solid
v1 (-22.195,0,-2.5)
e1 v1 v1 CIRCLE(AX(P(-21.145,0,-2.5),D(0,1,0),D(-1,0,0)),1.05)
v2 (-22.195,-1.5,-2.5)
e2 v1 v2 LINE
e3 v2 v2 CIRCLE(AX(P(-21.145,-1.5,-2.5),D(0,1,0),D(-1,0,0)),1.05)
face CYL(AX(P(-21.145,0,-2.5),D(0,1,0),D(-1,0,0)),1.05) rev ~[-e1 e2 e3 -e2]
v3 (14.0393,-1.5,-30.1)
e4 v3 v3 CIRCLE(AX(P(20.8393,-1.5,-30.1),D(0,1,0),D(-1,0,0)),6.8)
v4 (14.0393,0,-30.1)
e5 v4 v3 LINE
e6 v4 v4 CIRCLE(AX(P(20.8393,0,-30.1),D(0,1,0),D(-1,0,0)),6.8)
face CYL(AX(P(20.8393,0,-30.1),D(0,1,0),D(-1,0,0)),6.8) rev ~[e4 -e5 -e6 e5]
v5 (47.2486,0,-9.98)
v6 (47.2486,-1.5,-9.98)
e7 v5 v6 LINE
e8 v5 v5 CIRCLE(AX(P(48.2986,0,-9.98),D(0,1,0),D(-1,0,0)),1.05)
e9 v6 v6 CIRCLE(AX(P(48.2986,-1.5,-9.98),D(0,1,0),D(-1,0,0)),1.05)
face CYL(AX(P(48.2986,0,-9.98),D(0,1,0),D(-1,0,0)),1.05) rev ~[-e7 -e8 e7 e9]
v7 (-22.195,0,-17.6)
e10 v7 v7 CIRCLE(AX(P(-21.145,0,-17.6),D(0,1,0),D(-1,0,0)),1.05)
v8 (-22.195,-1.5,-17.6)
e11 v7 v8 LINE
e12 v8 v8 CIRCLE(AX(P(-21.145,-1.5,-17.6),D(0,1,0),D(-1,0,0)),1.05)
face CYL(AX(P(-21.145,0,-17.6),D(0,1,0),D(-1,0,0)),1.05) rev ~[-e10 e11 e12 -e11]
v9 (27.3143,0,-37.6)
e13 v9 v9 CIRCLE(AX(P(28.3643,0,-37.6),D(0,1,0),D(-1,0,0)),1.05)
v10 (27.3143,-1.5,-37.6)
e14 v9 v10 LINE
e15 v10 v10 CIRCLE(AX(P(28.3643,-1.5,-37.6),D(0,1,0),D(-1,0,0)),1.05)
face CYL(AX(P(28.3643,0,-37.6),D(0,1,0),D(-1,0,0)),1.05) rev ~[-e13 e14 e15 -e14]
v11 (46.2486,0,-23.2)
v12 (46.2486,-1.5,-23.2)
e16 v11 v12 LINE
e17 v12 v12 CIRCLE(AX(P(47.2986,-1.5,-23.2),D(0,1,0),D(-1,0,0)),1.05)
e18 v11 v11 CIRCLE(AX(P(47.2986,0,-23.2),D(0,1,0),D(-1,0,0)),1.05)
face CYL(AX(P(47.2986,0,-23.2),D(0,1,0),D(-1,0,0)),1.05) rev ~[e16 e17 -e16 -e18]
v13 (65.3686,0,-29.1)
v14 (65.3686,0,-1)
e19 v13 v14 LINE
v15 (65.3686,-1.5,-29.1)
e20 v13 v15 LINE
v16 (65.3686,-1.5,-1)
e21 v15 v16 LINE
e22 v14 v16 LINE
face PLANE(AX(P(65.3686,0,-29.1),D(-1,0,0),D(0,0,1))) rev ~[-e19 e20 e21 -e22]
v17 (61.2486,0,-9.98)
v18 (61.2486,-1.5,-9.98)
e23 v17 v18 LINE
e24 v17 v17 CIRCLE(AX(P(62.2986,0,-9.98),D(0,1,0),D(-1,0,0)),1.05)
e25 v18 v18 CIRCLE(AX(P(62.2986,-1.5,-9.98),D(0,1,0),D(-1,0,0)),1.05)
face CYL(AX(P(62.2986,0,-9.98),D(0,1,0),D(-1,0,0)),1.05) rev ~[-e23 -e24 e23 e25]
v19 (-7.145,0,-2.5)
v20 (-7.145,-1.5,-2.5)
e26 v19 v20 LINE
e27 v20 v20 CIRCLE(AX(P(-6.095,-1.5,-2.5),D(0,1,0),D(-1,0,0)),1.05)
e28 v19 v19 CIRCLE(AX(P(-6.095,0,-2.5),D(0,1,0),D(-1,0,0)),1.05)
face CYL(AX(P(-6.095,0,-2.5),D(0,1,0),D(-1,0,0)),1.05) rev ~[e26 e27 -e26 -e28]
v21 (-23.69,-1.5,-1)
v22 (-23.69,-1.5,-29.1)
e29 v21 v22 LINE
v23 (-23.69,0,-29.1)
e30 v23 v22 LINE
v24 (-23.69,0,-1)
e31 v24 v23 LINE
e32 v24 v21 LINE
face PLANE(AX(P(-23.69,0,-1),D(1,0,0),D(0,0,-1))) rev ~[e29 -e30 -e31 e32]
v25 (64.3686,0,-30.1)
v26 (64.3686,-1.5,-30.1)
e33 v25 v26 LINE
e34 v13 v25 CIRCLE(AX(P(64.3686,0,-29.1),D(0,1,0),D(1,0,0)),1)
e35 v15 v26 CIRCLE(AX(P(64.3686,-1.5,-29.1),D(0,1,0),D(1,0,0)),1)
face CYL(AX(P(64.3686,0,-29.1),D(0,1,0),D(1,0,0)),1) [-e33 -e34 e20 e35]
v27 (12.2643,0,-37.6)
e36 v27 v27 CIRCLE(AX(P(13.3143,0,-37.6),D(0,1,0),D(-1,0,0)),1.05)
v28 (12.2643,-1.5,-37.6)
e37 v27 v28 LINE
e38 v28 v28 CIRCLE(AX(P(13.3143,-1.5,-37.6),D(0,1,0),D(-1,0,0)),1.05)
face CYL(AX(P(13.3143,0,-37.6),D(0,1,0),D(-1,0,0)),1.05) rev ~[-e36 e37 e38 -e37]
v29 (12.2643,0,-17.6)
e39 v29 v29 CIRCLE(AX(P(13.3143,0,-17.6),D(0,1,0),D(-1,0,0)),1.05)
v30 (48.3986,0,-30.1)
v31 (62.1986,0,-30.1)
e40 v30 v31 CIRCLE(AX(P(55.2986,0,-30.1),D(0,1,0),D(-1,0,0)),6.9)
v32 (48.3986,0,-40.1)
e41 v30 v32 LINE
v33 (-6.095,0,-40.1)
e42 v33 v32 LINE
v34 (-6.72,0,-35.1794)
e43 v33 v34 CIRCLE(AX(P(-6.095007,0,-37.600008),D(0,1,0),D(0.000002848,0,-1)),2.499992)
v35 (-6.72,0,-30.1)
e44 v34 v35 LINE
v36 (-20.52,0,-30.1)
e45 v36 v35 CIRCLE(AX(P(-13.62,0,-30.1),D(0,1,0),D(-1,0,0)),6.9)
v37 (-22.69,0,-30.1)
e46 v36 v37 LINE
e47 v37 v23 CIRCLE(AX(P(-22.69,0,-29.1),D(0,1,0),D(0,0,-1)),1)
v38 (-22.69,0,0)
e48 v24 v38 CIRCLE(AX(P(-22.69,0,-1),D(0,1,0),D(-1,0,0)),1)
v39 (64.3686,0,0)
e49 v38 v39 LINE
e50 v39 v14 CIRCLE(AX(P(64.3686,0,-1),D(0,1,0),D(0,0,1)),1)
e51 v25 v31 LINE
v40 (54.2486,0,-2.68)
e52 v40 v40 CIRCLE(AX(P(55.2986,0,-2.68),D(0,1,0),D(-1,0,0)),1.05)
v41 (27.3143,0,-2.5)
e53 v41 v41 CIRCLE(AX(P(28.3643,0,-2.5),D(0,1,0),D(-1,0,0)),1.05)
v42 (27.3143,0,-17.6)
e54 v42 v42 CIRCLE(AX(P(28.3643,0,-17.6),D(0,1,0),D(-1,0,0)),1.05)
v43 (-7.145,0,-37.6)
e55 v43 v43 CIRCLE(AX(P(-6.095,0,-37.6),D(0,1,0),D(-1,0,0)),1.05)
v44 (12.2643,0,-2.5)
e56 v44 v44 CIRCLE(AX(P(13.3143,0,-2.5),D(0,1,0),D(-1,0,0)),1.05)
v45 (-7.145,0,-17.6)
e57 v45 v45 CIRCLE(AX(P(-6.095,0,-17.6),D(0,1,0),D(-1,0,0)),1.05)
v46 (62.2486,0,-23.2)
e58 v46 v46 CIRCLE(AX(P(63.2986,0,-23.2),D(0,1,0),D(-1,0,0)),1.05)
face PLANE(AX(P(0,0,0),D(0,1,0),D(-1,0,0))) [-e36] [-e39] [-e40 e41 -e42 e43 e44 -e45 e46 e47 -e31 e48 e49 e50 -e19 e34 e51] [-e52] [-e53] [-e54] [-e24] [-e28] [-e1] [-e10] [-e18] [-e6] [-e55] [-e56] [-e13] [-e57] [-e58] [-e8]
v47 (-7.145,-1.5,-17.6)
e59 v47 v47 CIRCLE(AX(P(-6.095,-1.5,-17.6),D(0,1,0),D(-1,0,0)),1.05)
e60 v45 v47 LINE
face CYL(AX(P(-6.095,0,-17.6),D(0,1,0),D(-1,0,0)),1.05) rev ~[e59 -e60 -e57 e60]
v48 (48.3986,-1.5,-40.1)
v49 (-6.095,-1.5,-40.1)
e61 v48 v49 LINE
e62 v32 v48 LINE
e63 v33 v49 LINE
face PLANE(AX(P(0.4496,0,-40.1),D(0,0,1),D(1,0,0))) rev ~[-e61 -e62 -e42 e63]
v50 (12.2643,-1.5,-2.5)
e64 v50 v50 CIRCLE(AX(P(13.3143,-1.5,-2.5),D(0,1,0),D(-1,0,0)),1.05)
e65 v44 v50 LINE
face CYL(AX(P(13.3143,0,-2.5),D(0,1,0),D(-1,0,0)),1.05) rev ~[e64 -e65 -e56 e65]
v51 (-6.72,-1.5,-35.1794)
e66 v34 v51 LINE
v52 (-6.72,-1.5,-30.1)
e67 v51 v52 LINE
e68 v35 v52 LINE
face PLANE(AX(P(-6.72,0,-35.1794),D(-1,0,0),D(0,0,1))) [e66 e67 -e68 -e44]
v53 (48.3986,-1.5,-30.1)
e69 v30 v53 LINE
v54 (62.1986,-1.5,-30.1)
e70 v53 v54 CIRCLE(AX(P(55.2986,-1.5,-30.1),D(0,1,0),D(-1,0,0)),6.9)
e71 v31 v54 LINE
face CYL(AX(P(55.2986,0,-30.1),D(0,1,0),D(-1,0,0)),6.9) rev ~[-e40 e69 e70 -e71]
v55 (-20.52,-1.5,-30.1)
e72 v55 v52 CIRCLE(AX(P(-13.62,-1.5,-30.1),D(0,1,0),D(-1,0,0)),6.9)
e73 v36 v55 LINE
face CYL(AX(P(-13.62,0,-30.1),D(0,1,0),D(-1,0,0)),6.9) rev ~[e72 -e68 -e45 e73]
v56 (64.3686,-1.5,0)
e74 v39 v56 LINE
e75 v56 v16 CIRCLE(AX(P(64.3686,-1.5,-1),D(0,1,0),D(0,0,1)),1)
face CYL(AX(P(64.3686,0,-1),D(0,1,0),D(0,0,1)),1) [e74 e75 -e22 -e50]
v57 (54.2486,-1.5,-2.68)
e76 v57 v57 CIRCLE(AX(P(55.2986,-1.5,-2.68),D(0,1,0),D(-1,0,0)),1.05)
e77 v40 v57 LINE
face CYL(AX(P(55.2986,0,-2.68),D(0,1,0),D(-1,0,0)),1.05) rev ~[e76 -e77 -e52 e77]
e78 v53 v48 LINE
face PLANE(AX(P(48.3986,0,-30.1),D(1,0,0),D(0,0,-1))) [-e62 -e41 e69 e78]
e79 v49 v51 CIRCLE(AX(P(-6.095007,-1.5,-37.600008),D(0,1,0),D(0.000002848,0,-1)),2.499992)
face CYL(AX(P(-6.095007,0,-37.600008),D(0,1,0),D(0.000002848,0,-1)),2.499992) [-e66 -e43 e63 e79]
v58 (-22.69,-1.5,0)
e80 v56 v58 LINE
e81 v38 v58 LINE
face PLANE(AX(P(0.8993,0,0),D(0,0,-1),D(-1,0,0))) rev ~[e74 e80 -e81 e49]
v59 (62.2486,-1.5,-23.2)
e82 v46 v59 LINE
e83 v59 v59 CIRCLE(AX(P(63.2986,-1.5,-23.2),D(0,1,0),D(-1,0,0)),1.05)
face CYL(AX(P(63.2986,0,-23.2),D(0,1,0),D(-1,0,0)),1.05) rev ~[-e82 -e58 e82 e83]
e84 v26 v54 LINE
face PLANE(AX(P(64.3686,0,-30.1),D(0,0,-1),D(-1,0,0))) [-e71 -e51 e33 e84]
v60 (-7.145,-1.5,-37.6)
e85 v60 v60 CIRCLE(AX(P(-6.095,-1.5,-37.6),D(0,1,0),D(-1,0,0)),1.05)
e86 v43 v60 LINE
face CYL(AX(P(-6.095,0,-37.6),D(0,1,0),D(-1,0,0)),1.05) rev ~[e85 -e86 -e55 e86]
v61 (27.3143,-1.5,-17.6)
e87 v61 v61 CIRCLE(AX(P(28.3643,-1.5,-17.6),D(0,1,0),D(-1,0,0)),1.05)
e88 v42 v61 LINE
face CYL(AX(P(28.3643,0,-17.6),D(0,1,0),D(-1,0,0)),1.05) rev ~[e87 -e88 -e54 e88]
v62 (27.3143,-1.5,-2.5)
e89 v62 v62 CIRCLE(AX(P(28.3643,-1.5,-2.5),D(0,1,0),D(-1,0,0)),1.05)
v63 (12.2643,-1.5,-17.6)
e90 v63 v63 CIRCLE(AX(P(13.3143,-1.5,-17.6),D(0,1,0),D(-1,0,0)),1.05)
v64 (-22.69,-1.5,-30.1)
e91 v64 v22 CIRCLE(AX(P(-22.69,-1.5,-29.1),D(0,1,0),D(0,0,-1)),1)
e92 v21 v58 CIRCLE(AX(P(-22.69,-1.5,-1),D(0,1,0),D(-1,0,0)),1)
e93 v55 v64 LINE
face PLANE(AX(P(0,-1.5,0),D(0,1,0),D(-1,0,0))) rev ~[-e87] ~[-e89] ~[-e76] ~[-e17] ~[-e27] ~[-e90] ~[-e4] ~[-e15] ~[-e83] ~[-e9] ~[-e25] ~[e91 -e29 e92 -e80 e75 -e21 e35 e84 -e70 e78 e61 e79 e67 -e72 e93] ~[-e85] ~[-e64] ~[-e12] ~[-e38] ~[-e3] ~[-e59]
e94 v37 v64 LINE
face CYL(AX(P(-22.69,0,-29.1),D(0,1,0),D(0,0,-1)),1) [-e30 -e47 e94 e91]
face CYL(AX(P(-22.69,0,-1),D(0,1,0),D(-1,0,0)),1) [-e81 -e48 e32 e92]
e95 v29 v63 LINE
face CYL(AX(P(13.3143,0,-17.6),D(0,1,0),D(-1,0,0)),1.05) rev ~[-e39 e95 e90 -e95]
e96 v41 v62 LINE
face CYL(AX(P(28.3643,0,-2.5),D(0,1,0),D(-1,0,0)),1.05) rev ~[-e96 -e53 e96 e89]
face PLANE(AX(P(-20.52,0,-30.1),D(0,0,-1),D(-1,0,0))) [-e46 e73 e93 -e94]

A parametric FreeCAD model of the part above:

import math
import FreeCAD as App
import Part
import Sketcher
Q = App.Units.Quantity

doc = App.newDocument("Part")
body = doc.addObject("PartDesign::Body", "Body")

# Sketch on XZ plane
sketch1 = doc.addObject("Sketcher::SketchObject", "Sketch")
body.addObject(sketch1)
sketch1.AttachmentSupport = (doc.XZ_Plane, [""])
sketch1.MapMode = "FlatFace"
sketch1.addGeometry([
    Part.ArcOfCircle(Part.Circle(App.Vector(-6.095, -37.6, 0), App.Vector(0, 0, 1), 2.5), math.radians(104.477596), math.radians(270)),  # 0
    Part.LineSegment(App.Vector(-6.72, -35.1794, 0), App.Vector(-6.72, -30.1, 0)),  # 1
    Part.ArcOfCircle(Part.Circle(App.Vector(-13.62, -30.1, 0), App.Vector(0, 0, 1), 6.9), math.radians(0), math.radians(180)),  # 2
    Part.LineSegment(App.Vector(-20.52, -30.1, 0), App.Vector(-22.69, -30.1, 0)),  # 3
    Part.ArcOfCircle(Part.Circle(App.Vector(-22.69, -29.1, 0), App.Vector(0, 0, 1), 1), math.radians(180), math.radians(270)),  # 4
    Part.LineSegment(App.Vector(-23.69, -29.1, 0), App.Vector(-23.69, -1, 0)),  # 5
    Part.ArcOfCircle(Part.Circle(App.Vector(-22.69, -1, 0), App.Vector(0, 0, 1), 1), math.radians(90), math.radians(180)),  # 6
    Part.LineSegment(App.Vector(-22.69, 0, 0), App.Vector(64.3686, 0, 0)),  # 7
    Part.ArcOfCircle(Part.Circle(App.Vector(64.3686, -1, 0), App.Vector(0, 0, 1), 1), math.radians(0), math.radians(90)),  # 8
    Part.LineSegment(App.Vector(65.3686, -1, 0), App.Vector(65.3686, -29.1, 0)),  # 9
    Part.ArcOfCircle(Part.Circle(App.Vector(64.3686, -29.1, 0), App.Vector(0, 0, 1), 1), math.radians(-90), math.radians(0)),  # 10
    Part.LineSegment(App.Vector(64.3686, -30.1, 0), App.Vector(62.1986, -30.1, 0)),  # 11
    Part.ArcOfCircle(Part.Circle(App.Vector(55.2986, -30.1, 0), App.Vector(0, 0, 1), 6.9), math.radians(0), math.radians(180)),  # 12
    Part.LineSegment(App.Vector(48.3986, -30.1, 0), App.Vector(48.3986, -40.1, 0)),  # 13
    Part.LineSegment(App.Vector(48.3986, -40.1, 0), App.Vector(-6.095, -40.1, 0)),  # 14
    Part.Circle(App.Vector(13.3143, -2.5, 0), App.Vector(0, 0, 1), 1.05),  # 15
    Part.Circle(App.Vector(28.3643, -37.6, 0), App.Vector(0, 0, 1), 1.05),  # 16
    Part.Circle(App.Vector(13.3143, -37.6, 0), App.Vector(0, 0, 1), 1.05),  # 17
    Part.Circle(App.Vector(20.8393, -30.1, 0), App.Vector(0, 0, 1), 6.8),  # 18
    Part.Circle(App.Vector(28.3643, -17.6, 0), App.Vector(0, 0, 1), 1.05),  # 19
    Part.Circle(App.Vector(28.3643, -2.5, 0), App.Vector(0, 0, 1), 1.05),  # 20
    Part.Circle(App.Vector(13.3143, -17.6, 0), App.Vector(0, 0, 1), 1.05),  # 21
    Part.Circle(App.Vector(-21.145, -2.5, 0), App.Vector(0, 0, 1), 1.05),  # 22
    Part.Circle(App.Vector(-6.095, -37.6, 0), App.Vector(0, 0, 1), 1.05),  # 23
    Part.Circle(App.Vector(-6.095, -17.6, 0), App.Vector(0, 0, 1), 1.05),  # 24
    Part.Circle(App.Vector(-21.145, -17.6, 0), App.Vector(0, 0, 1), 1.05),  # 25
    Part.Circle(App.Vector(-6.095, -2.5, 0), App.Vector(0, 0, 1), 1.05),  # 26
    Part.Circle(App.Vector(55.2986, -2.68, 0), App.Vector(0, 0, 1), 1.05),  # 27
    Part.Circle(App.Vector(63.2986, -23.2, 0), App.Vector(0, 0, 1), 1.05),  # 28
    Part.Circle(App.Vector(47.2986, -23.2, 0), App.Vector(0, 0, 1), 1.05),  # 29
    Part.Circle(App.Vector(62.2986, -9.98, 0), App.Vector(0, 0, 1), 1.05),  # 30
    Part.Circle(App.Vector(48.2986, -9.98, 0), App.Vector(0, 0, 1), 1.05),  # 31
], False)
sketch1.addConstraint([
    Sketcher.Constraint("Coincident", 0, 1, 1, 1),
    Sketcher.Constraint("Tangent", 1, 2, 2, 1),
    Sketcher.Constraint("Coincident", 2, 2, 3, 1),
    Sketcher.Constraint("Tangent", 3, 2, 4, 2),
    Sketcher.Constraint("Tangent", 4, 1, 5, 1),
    Sketcher.Constraint("Tangent", 5, 2, 6, 2),
    Sketcher.Constraint("Tangent", 6, 1, 7, 1),
    Sketcher.Constraint("Tangent", 7, 2, 8, 2),
    Sketcher.Constraint("Tangent", 8, 1, 9, 1),
    Sketcher.Constraint("Tangent", 9, 2, 10, 2),
    Sketcher.Constraint("Tangent", 10, 1, 11, 1),
    Sketcher.Constraint("Coincident", 11, 2, 12, 1),
    Sketcher.Constraint("Tangent", 12, 2, 13, 1),
    Sketcher.Constraint("Coincident", 13, 2, 14, 1),
    Sketcher.Constraint("Tangent", 14, 2, 0, 2),
    Sketcher.Constraint("Vertical", 1),
    Sketcher.Constraint("Horizontal", 3),
    Sketcher.Constraint("Vertical", 5),
    Sketcher.Constraint("Horizontal", 7),
    Sketcher.Constraint("Vertical", 9),
    Sketcher.Constraint("Horizontal", 11),
    Sketcher.Constraint("Vertical", 13),
    Sketcher.Constraint("Horizontal", 14),
    Sketcher.Constraint("Coincident", 23, 3, 0, 3),
    Sketcher.Constraint("Equal", 4, 6),
    Sketcher.Constraint("Equal", 6, 8),
    Sketcher.Constraint("Equal", 8, 10),
    Sketcher.Constraint("Equal", 2, 12),
    Sketcher.Constraint("Equal", 15, 16),
    Sketcher.Constraint("Equal", 16, 17),
    Sketcher.Constraint("Equal", 17, 19),
    Sketcher.Constraint("Equal", 19, 20),
    Sketcher.Constraint("Equal", 20, 21),
    Sketcher.Constraint("Equal", 21, 22),
    Sketcher.Constraint("Equal", 22, 23),
    Sketcher.Constraint("Equal", 23, 24),
    Sketcher.Constraint("Equal", 24, 25),
    Sketcher.Constraint("Equal", 25, 26),
    Sketcher.Constraint("Equal", 26, 27),
    Sketcher.Constraint("Equal", 27, 28),
    Sketcher.Constraint("Equal", 28, 29),
    Sketcher.Constraint("Equal", 29, 30),
    Sketcher.Constraint("Equal", 30, 31),
    Sketcher.Constraint("PointOnObject", 6, 1, -1),
    Sketcher.Constraint("Horizontal", 4, 3, 10, 3),
    Sketcher.Constraint("Horizontal", 2, 3, 12, 3),
    Sketcher.Constraint("Horizontal", 0, 3, 16, 3),
    Sketcher.Constraint("Horizontal", 16, 3, 17, 3),
    Sketcher.Constraint("Horizontal", 12, 3, 18, 3),
    Sketcher.Constraint("Horizontal", 15, 3, 20, 3),
    Sketcher.Constraint("Horizontal", 19, 3, 21, 3),
    Sketcher.Constraint("Horizontal", 20, 3, 22, 3),
    Sketcher.Constraint("Horizontal", 21, 3, 24, 3),
    Sketcher.Constraint("Horizontal", 24, 3, 25, 3),
    Sketcher.Constraint("Horizontal", 22, 3, 26, 3),
    Sketcher.Constraint("Horizontal", 28, 3, 29, 3),
    Sketcher.Constraint("Horizontal", 30, 3, 31, 3),
    Sketcher.Constraint("Horizontal", 1, 2, 2, 2),
    Sketcher.Constraint("Vertical", 15, 3, 17, 3),
    Sketcher.Constraint("Vertical", 16, 3, 19, 3),
    Sketcher.Constraint("Vertical", 19, 3, 20, 3),
    Sketcher.Constraint("Vertical", 17, 3, 21, 3),
    Sketcher.Constraint("Vertical", 23, 3, 24, 3),
    Sketcher.Constraint("Vertical", 22, 3, 25, 3),
    Sketcher.Constraint("Vertical", 24, 3, 26, 3),
    Sketcher.Constraint("Vertical", 12, 3, 27, 3),
    Sketcher.Constraint("Equal", 3, 11),
    Sketcher.Constraint("Radius", 4, Q("1 mm")),
    Sketcher.Constraint("Diameter", 15, Q("2.1 mm")),
    Sketcher.Constraint("Diameter", 18, Q("13.6 mm")),
    Sketcher.Constraint("Radius", 0, Q("2.5 mm")),
    Sketcher.Constraint("Radius", 2, Q("6.9 mm")),
    Sketcher.Constraint("DistanceY", 13, 2, 13, 1, Q("10 mm")),
    Sketcher.Constraint("DistanceY", 5, 1, 5, 2, Q("28.1 mm")),
    Sketcher.Constraint("DistanceY", 16, 3, 19, 3, Q("20 mm")),
    Sketcher.Constraint("DistanceX", 12, 3, 28, 3, Q("8 mm")),
    Sketcher.Constraint("DistanceX", 29, 3, 12, 3, Q("8 mm")),
    Sketcher.Constraint("DistanceX", 27, 3, 30, 3, Q("7 mm")),
    Sketcher.Constraint("DistanceX", 31, 3, 27, 3, Q("7 mm")),
    Sketcher.Constraint("DistanceX", 3, 2, 3, 1, Q("2.17 mm")),
    Sketcher.Constraint("DistanceY", 15, 3, -1, 1, Q("2.5 mm")),
    Sketcher.Constraint("DistanceY", 28, 3, -1, 1, Q("23.2 mm")),
    Sketcher.Constraint("DistanceY", 30, 3, 27, 3, Q("7.3 mm")),
    Sketcher.Constraint("DistanceX", 2, 3, -1, 1, Q("13.62 mm")),
    Sketcher.Constraint("DistanceY", 27, 3, -1, 1, Q("2.68 mm")),
    Sketcher.Constraint("DistanceX", 15, 3, 16, 3, Q("15.05 mm")),
    Sketcher.Constraint("DistanceX", 25, 3, 24, 3, Q("15.05 mm")),
    Sketcher.Constraint("DistanceX", 7, 1, 7, 2, Q("87.0586 mm")),
    Sketcher.Constraint("DistanceX", 14, 2, 14, 1, Q("54.4936 mm")),
    Sketcher.Constraint("DistanceX", 18, 3, 16, 3, Q("7.525 mm")),
    Sketcher.Constraint("DistanceX", -1, 1, 15, 3, Q("13.3143 mm")),
])
pad1 = doc.addObject("PartDesign::Pad", "Pad")
body.addObject(pad1)
pad1.Profile = sketch1
pad1.Length = 1.5

doc.recompute()
